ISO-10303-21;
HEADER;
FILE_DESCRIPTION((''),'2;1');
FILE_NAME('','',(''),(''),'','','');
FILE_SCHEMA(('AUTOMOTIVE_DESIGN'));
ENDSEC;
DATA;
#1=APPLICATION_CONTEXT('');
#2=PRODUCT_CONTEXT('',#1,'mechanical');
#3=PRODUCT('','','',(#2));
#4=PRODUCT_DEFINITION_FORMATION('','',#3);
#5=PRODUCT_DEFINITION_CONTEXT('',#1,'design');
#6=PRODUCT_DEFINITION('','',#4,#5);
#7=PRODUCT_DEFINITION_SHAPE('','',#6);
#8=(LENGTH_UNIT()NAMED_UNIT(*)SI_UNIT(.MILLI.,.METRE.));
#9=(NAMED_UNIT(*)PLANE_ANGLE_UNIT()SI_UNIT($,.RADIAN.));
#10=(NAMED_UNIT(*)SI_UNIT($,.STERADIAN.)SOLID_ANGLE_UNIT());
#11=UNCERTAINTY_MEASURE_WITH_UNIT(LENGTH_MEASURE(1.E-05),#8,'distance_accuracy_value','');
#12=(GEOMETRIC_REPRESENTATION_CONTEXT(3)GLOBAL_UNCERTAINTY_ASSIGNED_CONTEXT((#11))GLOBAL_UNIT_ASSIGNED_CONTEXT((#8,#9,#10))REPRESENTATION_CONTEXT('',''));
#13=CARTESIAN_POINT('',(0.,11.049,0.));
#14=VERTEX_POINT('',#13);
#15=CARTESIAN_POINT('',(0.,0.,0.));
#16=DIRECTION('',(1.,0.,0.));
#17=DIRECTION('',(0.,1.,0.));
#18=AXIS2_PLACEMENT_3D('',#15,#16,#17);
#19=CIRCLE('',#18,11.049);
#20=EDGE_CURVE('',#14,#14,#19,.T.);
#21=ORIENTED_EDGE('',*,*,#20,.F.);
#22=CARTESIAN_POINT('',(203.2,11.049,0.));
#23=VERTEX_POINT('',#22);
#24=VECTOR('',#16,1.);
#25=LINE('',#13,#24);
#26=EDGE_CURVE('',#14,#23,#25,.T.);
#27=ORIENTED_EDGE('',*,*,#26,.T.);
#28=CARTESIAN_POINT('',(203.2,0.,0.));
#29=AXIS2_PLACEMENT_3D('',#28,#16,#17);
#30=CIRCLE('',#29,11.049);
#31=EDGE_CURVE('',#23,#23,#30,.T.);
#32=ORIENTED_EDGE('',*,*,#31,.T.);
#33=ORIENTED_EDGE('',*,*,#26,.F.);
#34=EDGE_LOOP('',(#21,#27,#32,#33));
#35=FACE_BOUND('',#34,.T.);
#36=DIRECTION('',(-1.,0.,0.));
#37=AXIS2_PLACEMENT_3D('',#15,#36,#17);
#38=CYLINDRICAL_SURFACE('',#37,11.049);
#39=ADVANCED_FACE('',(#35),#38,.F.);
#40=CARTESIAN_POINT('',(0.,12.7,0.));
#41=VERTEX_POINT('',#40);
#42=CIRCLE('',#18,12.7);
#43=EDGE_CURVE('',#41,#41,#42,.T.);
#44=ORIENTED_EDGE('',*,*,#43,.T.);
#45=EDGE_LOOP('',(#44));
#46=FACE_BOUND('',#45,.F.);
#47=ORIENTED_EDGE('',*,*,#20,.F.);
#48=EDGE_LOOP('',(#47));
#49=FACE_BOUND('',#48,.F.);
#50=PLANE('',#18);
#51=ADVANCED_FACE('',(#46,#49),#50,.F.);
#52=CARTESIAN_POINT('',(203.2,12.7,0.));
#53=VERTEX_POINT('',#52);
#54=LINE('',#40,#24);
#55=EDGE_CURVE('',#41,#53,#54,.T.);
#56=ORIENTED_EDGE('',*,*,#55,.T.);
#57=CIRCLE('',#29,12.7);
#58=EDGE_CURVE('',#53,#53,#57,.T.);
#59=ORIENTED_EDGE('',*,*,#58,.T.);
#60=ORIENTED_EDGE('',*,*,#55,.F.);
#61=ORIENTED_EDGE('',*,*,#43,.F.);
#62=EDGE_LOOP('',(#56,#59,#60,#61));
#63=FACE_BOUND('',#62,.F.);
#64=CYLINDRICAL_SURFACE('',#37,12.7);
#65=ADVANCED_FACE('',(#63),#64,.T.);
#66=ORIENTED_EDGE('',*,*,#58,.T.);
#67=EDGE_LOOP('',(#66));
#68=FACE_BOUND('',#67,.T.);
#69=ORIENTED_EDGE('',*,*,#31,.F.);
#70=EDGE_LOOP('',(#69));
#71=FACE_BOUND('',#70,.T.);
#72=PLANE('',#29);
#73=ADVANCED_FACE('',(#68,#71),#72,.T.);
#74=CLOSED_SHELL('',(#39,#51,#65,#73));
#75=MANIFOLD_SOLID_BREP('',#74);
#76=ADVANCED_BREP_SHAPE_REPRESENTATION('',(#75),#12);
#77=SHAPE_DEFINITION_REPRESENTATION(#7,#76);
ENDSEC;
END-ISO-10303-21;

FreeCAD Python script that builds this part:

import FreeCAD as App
import Part
import Sketcher
Q = App.Units.Quantity

doc = App.newDocument("Part")
body = doc.addObject("PartDesign::Body", "Body")

# Sketch on YZ plane
sketch1 = body.newObject("Sketcher::SketchObject", "Sketch")
sketch1.AttachmentSupport = (doc.getObject("YZ_Plane"), [""])
sketch1.MapMode = "FlatFace"
sketch1.addGeometry([
    Part.Circle(App.Vector(0, 0, 0), App.Vector(0, 0, 1), 13),
    Part.Circle(App.Vector(0, 0, 0), App.Vector(0, 0, 1), 11),
], False)
sketch1.addConstraint([
    Sketcher.Constraint("Coincident", 0, 3, -1, 1),
    Sketcher.Constraint("Coincident", 1, 3, -1, 1),
    Sketcher.Constraint("Diameter", 0, Q("1 in")),
    Sketcher.Constraint("Diameter", 1, Q("0.87 in")),
])
pad1 = body.newObject("PartDesign::Pad", "Pad")
pad1.Profile = sketch1
pad1.Length = Q("8 in")

doc.recompute()
